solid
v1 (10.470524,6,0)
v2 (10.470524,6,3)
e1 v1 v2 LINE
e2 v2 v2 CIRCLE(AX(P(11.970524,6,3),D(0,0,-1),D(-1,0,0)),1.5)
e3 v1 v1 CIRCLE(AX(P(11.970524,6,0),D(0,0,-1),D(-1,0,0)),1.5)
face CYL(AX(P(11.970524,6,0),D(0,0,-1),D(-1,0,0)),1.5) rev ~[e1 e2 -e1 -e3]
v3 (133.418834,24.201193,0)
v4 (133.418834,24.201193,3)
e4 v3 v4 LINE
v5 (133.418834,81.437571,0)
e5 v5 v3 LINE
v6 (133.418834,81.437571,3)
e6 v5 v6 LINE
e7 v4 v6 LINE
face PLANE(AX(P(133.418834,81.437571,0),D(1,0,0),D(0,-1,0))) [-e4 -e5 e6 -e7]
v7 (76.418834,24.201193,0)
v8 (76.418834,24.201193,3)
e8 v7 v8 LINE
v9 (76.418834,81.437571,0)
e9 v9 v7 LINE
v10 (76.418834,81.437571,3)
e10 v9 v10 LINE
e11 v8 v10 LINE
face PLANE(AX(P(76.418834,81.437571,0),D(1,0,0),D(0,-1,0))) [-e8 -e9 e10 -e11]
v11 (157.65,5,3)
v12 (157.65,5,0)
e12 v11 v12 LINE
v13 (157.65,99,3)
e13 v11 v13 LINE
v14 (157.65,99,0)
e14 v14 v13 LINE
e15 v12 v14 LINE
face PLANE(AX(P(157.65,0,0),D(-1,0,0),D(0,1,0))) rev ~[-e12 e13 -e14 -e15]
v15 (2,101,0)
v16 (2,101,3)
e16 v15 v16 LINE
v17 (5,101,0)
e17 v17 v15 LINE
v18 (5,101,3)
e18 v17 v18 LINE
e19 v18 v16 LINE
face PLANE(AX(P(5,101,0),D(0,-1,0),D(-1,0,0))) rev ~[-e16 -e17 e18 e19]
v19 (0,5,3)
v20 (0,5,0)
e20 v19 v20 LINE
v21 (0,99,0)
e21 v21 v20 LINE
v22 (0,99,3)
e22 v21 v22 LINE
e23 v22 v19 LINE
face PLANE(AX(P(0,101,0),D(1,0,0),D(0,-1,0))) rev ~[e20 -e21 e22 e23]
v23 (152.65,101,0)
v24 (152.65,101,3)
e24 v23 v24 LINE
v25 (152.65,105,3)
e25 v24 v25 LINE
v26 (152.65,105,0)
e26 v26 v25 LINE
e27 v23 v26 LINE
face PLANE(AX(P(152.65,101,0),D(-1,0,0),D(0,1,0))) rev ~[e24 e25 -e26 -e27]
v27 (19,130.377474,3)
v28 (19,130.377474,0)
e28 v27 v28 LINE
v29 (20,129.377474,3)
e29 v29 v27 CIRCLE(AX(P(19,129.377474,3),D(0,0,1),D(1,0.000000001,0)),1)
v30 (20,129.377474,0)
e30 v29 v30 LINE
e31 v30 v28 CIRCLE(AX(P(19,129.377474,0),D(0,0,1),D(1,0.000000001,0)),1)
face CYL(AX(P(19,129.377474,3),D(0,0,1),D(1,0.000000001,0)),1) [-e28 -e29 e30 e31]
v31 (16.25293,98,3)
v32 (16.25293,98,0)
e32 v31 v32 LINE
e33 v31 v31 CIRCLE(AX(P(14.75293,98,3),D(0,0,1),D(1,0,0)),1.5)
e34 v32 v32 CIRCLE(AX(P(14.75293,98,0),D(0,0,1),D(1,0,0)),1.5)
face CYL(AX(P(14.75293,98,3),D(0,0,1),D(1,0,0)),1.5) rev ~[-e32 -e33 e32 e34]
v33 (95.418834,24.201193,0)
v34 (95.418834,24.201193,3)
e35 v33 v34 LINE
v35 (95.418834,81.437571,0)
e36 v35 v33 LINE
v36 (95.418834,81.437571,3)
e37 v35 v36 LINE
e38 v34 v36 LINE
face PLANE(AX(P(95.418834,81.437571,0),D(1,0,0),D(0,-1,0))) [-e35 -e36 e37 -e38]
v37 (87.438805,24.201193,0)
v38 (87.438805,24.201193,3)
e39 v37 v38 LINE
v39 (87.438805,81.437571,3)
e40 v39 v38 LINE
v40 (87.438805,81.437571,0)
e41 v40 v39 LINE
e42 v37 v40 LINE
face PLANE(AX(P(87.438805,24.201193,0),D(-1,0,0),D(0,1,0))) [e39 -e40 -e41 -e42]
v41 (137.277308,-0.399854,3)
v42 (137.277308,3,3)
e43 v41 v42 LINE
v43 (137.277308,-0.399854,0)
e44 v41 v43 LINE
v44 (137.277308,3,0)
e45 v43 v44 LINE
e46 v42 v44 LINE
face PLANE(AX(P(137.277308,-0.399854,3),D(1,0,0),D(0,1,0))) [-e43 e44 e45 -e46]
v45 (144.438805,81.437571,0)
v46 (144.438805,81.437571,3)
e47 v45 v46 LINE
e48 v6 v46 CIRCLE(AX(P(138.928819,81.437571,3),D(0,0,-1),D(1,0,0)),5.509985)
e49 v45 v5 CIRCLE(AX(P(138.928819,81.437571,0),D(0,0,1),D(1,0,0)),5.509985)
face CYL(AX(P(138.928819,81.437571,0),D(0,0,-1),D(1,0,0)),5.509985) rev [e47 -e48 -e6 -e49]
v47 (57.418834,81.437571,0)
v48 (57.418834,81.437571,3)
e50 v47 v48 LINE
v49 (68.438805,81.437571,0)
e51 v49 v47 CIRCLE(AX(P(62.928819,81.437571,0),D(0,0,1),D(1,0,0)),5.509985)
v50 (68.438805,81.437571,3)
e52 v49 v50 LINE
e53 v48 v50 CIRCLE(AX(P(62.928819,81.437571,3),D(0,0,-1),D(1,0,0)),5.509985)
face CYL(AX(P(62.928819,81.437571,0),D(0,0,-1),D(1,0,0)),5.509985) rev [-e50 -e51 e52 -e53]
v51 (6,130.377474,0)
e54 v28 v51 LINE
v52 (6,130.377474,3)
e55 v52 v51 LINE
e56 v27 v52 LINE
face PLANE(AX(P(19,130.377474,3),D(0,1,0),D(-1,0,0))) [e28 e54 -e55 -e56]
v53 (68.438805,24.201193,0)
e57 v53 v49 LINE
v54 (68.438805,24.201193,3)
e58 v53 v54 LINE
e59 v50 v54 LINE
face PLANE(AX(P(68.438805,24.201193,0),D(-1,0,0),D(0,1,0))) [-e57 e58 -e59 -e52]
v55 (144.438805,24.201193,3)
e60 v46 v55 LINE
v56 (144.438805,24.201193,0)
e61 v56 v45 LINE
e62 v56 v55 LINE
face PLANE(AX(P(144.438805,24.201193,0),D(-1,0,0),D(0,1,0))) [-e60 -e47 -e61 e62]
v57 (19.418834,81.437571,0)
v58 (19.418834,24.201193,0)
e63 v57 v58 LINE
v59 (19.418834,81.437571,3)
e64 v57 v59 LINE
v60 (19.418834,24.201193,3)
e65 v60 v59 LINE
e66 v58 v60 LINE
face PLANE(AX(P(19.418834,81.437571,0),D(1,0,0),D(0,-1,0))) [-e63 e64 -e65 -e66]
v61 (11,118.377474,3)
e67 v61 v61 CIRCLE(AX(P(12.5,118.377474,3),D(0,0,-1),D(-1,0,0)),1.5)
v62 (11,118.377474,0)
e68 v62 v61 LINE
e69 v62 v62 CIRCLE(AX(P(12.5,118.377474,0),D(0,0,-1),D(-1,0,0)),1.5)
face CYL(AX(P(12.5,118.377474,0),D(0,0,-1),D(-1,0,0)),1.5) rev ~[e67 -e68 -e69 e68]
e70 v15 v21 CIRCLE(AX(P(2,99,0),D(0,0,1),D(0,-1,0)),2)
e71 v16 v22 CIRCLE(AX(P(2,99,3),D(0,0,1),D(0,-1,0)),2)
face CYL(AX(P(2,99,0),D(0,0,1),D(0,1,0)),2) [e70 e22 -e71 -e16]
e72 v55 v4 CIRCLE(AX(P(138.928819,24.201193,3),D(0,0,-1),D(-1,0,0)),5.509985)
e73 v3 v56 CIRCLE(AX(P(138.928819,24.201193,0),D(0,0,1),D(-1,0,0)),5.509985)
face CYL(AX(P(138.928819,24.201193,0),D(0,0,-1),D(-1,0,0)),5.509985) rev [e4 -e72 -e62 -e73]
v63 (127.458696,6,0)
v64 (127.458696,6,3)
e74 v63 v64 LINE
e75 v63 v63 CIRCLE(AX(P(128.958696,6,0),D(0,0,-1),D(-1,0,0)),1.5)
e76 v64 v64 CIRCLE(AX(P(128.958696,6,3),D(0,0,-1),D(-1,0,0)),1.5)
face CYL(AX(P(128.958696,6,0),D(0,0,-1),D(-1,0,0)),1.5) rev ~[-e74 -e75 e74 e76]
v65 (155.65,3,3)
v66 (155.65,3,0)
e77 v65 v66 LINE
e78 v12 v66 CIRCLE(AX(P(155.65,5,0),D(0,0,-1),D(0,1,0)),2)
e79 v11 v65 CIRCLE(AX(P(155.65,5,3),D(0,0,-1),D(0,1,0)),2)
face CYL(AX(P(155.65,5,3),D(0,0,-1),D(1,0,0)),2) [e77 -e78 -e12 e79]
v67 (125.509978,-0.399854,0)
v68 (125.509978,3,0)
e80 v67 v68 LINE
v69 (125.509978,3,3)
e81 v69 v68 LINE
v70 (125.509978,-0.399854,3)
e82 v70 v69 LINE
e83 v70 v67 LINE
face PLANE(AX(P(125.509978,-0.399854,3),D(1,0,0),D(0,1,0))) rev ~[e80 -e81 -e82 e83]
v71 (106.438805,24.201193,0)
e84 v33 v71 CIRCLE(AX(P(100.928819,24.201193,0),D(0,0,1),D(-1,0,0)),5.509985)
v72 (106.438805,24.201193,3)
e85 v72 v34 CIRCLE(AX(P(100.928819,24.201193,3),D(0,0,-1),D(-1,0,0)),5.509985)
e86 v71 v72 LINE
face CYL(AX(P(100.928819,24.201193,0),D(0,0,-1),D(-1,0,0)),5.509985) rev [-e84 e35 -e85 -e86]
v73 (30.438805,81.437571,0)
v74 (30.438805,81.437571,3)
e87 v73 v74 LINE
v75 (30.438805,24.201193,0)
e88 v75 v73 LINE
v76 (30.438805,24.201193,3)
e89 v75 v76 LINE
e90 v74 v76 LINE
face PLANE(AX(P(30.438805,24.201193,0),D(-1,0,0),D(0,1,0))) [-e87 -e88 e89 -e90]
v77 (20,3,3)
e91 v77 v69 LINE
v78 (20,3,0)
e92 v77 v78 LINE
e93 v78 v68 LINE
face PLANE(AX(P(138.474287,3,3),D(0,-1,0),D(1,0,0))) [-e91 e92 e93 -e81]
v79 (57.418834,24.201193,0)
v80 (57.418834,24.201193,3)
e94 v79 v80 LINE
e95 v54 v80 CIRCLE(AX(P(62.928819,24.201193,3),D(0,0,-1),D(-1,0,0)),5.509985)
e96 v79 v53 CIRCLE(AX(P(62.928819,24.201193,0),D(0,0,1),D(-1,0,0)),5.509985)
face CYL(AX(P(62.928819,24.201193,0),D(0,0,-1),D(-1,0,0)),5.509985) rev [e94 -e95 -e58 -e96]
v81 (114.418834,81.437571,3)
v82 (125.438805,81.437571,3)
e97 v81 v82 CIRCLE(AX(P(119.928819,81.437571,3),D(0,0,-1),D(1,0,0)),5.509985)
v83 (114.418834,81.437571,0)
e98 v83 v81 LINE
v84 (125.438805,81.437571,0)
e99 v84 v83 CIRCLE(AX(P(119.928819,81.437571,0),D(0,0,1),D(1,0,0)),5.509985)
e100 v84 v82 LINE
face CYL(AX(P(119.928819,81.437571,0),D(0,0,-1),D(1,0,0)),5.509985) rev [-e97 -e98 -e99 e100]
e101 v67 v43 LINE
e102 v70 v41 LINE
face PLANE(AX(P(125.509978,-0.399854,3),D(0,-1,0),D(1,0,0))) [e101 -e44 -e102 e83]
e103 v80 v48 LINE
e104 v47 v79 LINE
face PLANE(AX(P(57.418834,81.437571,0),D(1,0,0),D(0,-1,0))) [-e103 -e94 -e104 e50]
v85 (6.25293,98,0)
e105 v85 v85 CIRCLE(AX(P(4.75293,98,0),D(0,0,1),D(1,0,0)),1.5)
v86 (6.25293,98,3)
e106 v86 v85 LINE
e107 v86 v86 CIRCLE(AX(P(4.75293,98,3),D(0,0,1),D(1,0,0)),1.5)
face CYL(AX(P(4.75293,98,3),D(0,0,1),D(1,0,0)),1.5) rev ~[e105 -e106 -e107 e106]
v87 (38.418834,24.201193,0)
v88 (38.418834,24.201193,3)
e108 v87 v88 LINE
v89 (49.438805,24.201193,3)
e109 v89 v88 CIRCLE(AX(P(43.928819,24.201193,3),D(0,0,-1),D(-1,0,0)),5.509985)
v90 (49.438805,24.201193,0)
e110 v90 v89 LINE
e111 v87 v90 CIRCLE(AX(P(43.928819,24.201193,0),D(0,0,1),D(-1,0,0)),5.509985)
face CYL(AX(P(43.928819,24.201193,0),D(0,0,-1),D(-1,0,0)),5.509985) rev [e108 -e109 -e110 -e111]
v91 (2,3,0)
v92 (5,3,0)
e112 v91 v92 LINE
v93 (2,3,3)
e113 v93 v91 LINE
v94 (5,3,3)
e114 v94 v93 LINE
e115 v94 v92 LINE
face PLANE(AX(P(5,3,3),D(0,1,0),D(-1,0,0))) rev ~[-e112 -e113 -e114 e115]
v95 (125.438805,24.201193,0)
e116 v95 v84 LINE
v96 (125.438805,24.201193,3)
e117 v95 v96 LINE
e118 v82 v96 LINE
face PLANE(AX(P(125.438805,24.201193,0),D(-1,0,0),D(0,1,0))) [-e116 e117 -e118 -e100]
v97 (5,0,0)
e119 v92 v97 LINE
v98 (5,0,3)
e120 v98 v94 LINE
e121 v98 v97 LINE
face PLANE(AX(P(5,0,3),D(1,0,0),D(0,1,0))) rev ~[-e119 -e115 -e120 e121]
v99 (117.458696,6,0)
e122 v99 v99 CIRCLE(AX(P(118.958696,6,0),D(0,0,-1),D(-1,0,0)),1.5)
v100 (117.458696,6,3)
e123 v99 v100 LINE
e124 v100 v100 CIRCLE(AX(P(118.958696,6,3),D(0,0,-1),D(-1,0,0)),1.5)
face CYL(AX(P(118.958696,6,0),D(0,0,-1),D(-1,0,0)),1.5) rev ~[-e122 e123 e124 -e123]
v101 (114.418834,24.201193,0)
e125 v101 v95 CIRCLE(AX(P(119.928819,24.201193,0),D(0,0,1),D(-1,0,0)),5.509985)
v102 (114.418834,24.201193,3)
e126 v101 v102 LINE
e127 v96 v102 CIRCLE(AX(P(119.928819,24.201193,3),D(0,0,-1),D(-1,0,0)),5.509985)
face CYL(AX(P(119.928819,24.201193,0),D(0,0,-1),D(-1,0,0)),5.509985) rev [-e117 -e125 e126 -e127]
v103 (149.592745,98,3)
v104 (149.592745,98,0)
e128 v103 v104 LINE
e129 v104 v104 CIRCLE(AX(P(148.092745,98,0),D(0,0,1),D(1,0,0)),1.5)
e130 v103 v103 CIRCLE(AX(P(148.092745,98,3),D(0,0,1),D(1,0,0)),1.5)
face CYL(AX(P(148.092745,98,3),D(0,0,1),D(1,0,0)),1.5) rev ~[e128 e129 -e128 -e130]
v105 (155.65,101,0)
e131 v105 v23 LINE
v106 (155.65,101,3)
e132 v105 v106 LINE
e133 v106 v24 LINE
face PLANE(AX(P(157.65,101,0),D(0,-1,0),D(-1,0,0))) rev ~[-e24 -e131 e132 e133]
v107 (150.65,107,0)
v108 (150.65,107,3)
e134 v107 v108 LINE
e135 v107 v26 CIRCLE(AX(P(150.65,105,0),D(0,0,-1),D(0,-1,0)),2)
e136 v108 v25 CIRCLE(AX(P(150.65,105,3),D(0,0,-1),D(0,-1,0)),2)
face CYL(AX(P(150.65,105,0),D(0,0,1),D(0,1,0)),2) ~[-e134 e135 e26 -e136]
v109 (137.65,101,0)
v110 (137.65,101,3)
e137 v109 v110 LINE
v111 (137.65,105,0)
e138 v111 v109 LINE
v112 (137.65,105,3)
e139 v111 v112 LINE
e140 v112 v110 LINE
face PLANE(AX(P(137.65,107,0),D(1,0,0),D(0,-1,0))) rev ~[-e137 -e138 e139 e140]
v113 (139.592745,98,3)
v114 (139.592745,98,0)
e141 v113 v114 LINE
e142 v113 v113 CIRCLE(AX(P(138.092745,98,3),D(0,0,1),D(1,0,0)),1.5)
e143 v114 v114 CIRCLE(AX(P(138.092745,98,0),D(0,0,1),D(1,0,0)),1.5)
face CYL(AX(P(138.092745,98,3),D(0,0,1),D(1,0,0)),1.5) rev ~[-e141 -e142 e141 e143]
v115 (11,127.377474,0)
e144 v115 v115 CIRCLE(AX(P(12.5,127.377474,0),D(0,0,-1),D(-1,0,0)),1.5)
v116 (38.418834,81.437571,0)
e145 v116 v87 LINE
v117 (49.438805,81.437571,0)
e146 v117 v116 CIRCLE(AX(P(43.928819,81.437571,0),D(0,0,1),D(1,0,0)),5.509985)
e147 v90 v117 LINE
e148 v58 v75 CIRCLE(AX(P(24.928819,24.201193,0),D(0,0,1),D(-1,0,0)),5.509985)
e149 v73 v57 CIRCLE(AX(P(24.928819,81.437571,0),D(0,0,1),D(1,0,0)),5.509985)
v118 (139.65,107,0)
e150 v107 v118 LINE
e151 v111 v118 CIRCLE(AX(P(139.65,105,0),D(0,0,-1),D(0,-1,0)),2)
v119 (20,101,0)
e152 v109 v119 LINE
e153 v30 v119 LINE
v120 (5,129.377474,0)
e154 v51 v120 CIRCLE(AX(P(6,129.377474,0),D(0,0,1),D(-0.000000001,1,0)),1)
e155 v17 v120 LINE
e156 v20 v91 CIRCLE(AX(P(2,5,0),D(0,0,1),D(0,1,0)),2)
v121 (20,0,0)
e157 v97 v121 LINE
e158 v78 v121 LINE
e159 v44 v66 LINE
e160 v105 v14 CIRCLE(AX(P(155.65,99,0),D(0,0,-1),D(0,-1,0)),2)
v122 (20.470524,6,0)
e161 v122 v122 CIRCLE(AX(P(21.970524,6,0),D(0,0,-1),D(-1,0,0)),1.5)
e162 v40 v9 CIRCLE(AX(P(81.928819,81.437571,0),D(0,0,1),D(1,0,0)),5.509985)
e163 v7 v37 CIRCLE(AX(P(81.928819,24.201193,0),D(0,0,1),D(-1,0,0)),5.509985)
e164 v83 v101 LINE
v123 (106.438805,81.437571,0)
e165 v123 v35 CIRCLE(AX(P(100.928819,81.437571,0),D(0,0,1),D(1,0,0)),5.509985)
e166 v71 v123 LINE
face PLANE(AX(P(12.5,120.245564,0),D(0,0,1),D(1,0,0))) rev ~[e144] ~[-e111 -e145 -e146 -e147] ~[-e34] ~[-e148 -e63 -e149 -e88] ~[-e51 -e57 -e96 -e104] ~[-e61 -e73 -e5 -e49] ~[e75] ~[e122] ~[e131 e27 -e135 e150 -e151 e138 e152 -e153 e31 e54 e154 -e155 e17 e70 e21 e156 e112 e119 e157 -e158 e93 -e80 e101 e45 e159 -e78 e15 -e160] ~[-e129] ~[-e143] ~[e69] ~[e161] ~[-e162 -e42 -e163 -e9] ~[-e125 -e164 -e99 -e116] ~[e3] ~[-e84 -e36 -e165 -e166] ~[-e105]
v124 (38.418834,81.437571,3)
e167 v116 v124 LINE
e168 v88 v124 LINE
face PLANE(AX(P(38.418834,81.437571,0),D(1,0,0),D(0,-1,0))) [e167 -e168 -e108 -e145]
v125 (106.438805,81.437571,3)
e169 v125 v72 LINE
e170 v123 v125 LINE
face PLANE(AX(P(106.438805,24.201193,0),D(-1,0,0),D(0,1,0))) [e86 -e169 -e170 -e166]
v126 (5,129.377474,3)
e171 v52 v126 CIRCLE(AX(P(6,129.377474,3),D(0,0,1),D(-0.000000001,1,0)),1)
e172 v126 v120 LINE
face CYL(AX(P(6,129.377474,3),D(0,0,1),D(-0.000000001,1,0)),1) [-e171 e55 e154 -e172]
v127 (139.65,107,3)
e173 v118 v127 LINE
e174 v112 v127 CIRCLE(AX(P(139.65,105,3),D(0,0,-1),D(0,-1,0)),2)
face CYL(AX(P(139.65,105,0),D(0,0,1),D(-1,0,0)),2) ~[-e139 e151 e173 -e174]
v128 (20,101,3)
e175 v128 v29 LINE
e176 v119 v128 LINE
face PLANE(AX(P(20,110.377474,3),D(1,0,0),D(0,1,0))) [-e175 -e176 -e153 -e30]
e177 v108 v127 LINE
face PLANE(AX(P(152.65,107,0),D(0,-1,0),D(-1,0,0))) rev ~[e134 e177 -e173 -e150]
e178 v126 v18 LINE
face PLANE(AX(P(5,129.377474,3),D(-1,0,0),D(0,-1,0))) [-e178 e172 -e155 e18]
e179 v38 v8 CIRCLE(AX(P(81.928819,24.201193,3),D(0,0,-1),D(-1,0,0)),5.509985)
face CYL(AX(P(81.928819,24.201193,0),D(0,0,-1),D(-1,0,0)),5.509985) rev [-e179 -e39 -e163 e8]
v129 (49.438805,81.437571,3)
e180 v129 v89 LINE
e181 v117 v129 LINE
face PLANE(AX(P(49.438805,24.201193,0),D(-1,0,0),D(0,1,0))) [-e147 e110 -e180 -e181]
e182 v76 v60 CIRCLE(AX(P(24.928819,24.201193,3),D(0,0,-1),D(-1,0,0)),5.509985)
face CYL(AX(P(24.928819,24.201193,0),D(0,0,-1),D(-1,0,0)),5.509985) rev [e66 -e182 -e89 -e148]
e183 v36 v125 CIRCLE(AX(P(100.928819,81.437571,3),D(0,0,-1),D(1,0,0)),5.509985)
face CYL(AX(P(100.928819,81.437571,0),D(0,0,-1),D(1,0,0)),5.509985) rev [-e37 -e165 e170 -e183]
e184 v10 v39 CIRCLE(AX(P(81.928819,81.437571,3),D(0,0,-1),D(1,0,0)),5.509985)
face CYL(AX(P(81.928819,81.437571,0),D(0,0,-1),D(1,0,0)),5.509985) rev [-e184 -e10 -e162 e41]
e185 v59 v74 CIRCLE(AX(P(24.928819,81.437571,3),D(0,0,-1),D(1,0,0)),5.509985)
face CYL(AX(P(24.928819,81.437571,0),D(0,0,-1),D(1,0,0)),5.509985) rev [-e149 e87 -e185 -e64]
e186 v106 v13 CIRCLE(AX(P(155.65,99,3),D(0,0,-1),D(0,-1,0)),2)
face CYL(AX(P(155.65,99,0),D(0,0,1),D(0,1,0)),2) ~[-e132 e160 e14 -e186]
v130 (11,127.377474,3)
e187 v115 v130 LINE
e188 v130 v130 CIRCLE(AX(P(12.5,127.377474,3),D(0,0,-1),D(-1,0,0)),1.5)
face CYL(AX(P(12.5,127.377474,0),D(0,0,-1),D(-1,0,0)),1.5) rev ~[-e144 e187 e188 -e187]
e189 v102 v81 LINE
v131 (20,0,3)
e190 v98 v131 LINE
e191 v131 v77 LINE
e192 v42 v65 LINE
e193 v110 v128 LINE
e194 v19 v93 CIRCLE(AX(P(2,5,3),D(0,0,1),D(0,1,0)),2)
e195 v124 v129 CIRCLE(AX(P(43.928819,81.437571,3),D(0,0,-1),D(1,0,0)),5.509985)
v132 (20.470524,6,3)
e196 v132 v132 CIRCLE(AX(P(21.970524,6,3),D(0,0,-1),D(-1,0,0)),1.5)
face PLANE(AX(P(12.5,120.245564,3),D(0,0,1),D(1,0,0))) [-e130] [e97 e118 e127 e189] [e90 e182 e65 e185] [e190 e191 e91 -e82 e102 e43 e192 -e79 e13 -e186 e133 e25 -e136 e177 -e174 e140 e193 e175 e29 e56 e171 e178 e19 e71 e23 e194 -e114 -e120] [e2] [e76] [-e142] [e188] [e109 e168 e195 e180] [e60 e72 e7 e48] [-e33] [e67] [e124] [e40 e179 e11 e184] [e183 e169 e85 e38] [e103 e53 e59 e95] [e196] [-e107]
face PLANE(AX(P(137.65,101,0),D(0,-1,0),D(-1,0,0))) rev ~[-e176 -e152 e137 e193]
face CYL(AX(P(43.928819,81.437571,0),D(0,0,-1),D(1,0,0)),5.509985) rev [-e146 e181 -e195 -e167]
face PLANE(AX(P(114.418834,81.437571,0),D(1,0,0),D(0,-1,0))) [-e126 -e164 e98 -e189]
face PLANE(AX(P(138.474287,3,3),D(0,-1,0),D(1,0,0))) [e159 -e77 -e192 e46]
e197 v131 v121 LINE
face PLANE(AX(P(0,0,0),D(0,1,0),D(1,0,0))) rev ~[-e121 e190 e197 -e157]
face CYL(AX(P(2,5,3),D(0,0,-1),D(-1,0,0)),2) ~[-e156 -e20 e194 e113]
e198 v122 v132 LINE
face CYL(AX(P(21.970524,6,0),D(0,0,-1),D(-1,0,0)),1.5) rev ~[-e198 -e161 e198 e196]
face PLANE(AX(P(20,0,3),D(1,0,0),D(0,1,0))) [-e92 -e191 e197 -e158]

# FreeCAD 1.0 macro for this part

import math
import FreeCAD as App
import Part
import Sketcher

V = App.Vector
Q = App.Units.Quantity


def edges_at(feature, points):
    """Names of the edges that pass closest to the given points."""
    edges = feature.Shape.Edges
    near = lambda p: min(range(len(edges)), key=lambda i: edges[i].distToShape(Part.Vertex(*p))[0])
    return sorted({f"Edge{near(p) + 1}" for p in points})


def add_polygon(sketch, points):
    """Adds a closed chain of lines whose ends are joined by coincident constraints."""
    first, n = sketch.GeometryCount, len(points)
    for a, b in zip(points, points[1:] + points[:1]):
        sketch.addGeometry(Part.LineSegment(App.Vector(*a, 0), App.Vector(*b, 0)), False)
    for i in range(n):
        sketch.addConstraint(Sketcher.Constraint("Coincident", first + i, 2, first + (i + 1) % n, 1))

doc = App.newDocument("Part")
body = doc.addObject("PartDesign::Body", "Body")

# Sketch on XY plane
sketch1 = body.newObject("Sketcher::SketchObject", "Sketch")
sketch1.AttachmentSupport = (doc.getObject("XY_Plane"), [""])
sketch1.MapMode = "FlatFace"
add_polygon(sketch1, [(0, 101), (0, 0), (157.7, 0), (157.7, 101), (152.7, 101), (152.7, 107), (137.7, 107), (137.7, 101), (20, 101), (20, 104), (5, 104), (5, 101)])  # lines 0-11
sketch1.addConstraint(Sketcher.Constraint("Vertical", 0))
sketch1.addConstraint(Sketcher.Constraint("Horizontal", 1))
sketch1.addConstraint(Sketcher.Constraint("Vertical", 2))
sketch1.addConstraint(Sketcher.Constraint("Horizontal", 3))
sketch1.addConstraint(Sketcher.Constraint("Vertical", 4))
sketch1.addConstraint(Sketcher.Constraint("Horizontal", 5))
sketch1.addConstraint(Sketcher.Constraint("Vertical", 6))
sketch1.addConstraint(Sketcher.Constraint("Horizontal", 7))
sketch1.addConstraint(Sketcher.Constraint("Vertical", 8))
sketch1.addConstraint(Sketcher.Constraint("Horizontal", 9))
sketch1.addConstraint(Sketcher.Constraint("Vertical", 10))
sketch1.addConstraint(Sketcher.Constraint("Horizontal", 11))
sketch1.addConstraint(Sketcher.Constraint("Coincident", 0, 2, -1, 1))
sketch1.addConstraint(Sketcher.Constraint("Horizontal", 3, 2, 6, 2))
sketch1.addConstraint(Sketcher.Constraint("Horizontal", 7, 2, 10, 2))
sketch1.addConstraint(Sketcher.Constraint("Equal", 5, 9))
sketch1.addConstraint(Sketcher.Constraint("Equal", 3, 11))
sketch1.addConstraint(Sketcher.Constraint("DistanceX", 3, 2, 3, 1, Q("5 mm")))
sketch1.addConstraint(Sketcher.Constraint("DistanceX", 5, 2, 5, 1, Q("15 mm")))
sketch1.addConstraint(Sketcher.Constraint("DistanceY", 0, 2, 0, 1, Q("101 mm")))
sketch1.addConstraint(Sketcher.Constraint("DistanceY", 4, 1, 4, 2, Q("6 mm")))
sketch1.addConstraint(Sketcher.Constraint("DistanceY", 8, 1, 8, 2, Q("3 mm")))
sketch1.addConstraint(Sketcher.Constraint("DistanceX", 1, 1, 1, 2, Q("157.65 mm")))
pad1 = body.newObject("PartDesign::Pad", "Pad")
pad1.Profile = sketch1
pad1.Length = 3

# Sketch on XZ plane
sketch2 = body.newObject("Sketcher::SketchObject", "Sketch001")
sketch2.AttachmentSupport = (doc.getObject("XZ_Plane"), [""])
sketch2.MapMode = "FlatFace"
sketch2.AttachmentOffset = App.Placement(V(0, 0, -104), App.Rotation())
add_polygon(sketch2, [(5, 0), (5, 3), (20, 3), (20, 0)])  # lines 0-3
sketch2.addConstraint(Sketcher.Constraint("Vertical", 0))
sketch2.addConstraint(Sketcher.Constraint("Horizontal", 1))
sketch2.addConstraint(Sketcher.Constraint("Vertical", 2))
sketch2.addConstraint(Sketcher.Constraint("Horizontal", 3))
sketch2.addConstraint(Sketcher.Constraint("PointOnObject", 2, 2, -1))
sketch2.addConstraint(Sketcher.Constraint("DistanceX", 1, 1, 1, 2, Q("15 mm")))
sketch2.addConstraint(Sketcher.Constraint("DistanceY", 0, 1, 0, 2, Q("3 mm")))
sketch2.addConstraint(Sketcher.Constraint("DistanceX", -1, 1, 0, 2, Q("5 mm")))
pad2 = body.newObject("PartDesign::Pad", "Pad001")
pad2.Profile = sketch2
pad2.Length = 0.5
pad2.Reversed = True
doc.recompute()

fillet = body.newObject("PartDesign::Fillet", "Fillet")
fillet.Base = (pad2, edges_at(pad2, [(0, 0, 1.5)]))
fillet.Radius = 0.5

# Sketch on XY plane
sketch3 = body.newObject("Sketcher::SketchObject", "Sketch002")
sketch3.AttachmentSupport = (doc.getObject("XY_Plane"), [""])
sketch3.MapMode = "FlatFace"
sketch3.AttachmentOffset = App.Placement(V(0, 0, 3), App.Rotation())
sketch3.addGeometry(Part.LineSegment(V(5, 3, 0), V(0, 3, 0)), False)  # 0
sketch3.addGeometry(Part.LineSegment(V(0, 3, 0), V(0, 0.5, 0)), False)  # 1
sketch3.addGeometry(Part.ArcOfCircle(Part.Circle(V(0.5, 0.5, 0), V(0, 0, 1), 0.5), math.radians(180), math.radians(270)), False)  # 2
sketch3.addGeometry(Part.LineSegment(V(0.5, 0, 0), V(5, 0, 0)), False)  # 3
sketch3.addGeometry(Part.LineSegment(V(5, 0, 0), V(5, 3, 0)), False)  # 4
add_polygon(sketch3, [(20, 3), (20, 0), (138.47, 0), (138.47, 3)])  # lines 5-8
sketch3.addConstraint(Sketcher.Constraint("Coincident", 0, 2, 1, 1))
sketch3.addConstraint(Sketcher.Constraint("Tangent", 1, 2, 2, 1))
sketch3.addConstraint(Sketcher.Constraint("Tangent", 2, 2, 3, 1))
sketch3.addConstraint(Sketcher.Constraint("Coincident", 3, 2, 4, 1))
sketch3.addConstraint(Sketcher.Constraint("Coincident", 4, 2, 0, 1))
sketch3.addConstraint(Sketcher.Constraint("Horizontal", 0))
sketch3.addConstraint(Sketcher.Constraint("Vertical", 1))
sketch3.addConstraint(Sketcher.Constraint("Horizontal", 3))
sketch3.addConstraint(Sketcher.Constraint("Vertical", 4))
sketch3.addConstraint(Sketcher.Constraint("Vertical", 5))
sketch3.addConstraint(Sketcher.Constraint("Horizontal", 6))
sketch3.addConstraint(Sketcher.Constraint("Vertical", 7))
sketch3.addConstraint(Sketcher.Constraint("Horizontal", 8))
sketch3.addConstraint(Sketcher.Constraint("PointOnObject", 0, 2, -2))
sketch3.addConstraint(Sketcher.Constraint("PointOnObject", 2, 2, -1))
sketch3.addConstraint(Sketcher.Constraint("PointOnObject", 5, 2, -1))
sketch3.addConstraint(Sketcher.Constraint("Horizontal", 4, 2, 7, 2))
sketch3.addConstraint(Sketcher.Constraint("Radius", 2, Q("0.5 mm")))
sketch3.addConstraint(Sketcher.Constraint("DistanceX", 0, 2, 0, 1, Q("5 mm")))
sketch3.addConstraint(Sketcher.Constraint("DistanceY", 4, 1, 4, 2, Q("3 mm")))
sketch3.addConstraint(Sketcher.Constraint("DistanceX", -1, 1, 5, 2, Q("20 mm")))
sketch3.addConstraint(Sketcher.Constraint("DistanceX", 6, 1, 6, 2, Q("118.474287 mm")))
pocket1 = body.newObject("PartDesign::Pocket", "Pocket")
pocket1.Profile = sketch3
pocket1.Length = 10

# Sketch on XY plane
sketch4 = body.newObject("Sketcher::SketchObject", "Sketch003")
sketch4.AttachmentSupport = (doc.getObject("XY_Plane"), [""])
sketch4.MapMode = "FlatFace"
sketch4.addGeometry(Part.Circle(V(22, 6, 0), V(0, 0, 1), 1.5), False)
sketch4.addGeometry(Part.Circle(V(12, 6, 0), V(0, 0, 1), 1.5), False)
sketch4.addConstraint(Sketcher.Constraint("Equal", 0, 1))
sketch4.addConstraint(Sketcher.Constraint("Horizontal", 0, 3, 1, 3))
sketch4.addConstraint(Sketcher.Constraint("Diameter", 0, Q("3 mm")))
sketch4.addConstraint(Sketcher.Constraint("DistanceY", -1, 1, 0, 3, Q("6 mm")))
sketch4.addConstraint(Sketcher.Constraint("DistanceX", 1, 3, 0, 3, Q("10 mm")))
sketch4.addConstraint(Sketcher.Constraint("DistanceX", -1, 1, 0, 3, Q("21.970524 mm")))
pocket2 = body.newObject("PartDesign::Pocket", "Pocket001")
pocket2.Profile = sketch4
pocket2.Type = "ThroughAll"
pocket2.Reversed = True

# Sketch on XY plane
sketch5 = body.newObject("Sketcher::SketchObject", "Sketch004")
sketch5.AttachmentSupport = (doc.getObject("XY_Plane"), [""])
sketch5.MapMode = "FlatFace"
sketch5.addGeometry(Part.Circle(V(129, 6, 0), V(0, 0, 1), 1.5), False)
sketch5.addGeometry(Part.Circle(V(119, 6, 0), V(0, 0, 1), 1.5), False)
sketch5.addConstraint(Sketcher.Constraint("Equal", 0, 1))
sketch5.addConstraint(Sketcher.Constraint("Horizontal", 0, 3, 1, 3))
sketch5.addConstraint(Sketcher.Constraint("Diameter", 0, Q("3 mm")))
sketch5.addConstraint(Sketcher.Constraint("DistanceY", -1, 1, 0, 3, Q("6 mm")))
sketch5.addConstraint(Sketcher.Constraint("DistanceX", 1, 3, 0, 3, Q("10 mm")))
sketch5.addConstraint(Sketcher.Constraint("DistanceX", -1, 1, 0, 3, Q("128.958696 mm")))
pocket3 = body.newObject("PartDesign::Pocket", "Pocket002")
pocket3.Profile = sketch5
pocket3.Type = "ThroughAll"
pocket3.Reversed = True

# Sketch on XY plane
sketch6 = body.newObject("Sketcher::SketchObject", "Sketch005")
sketch6.AttachmentSupport = (doc.getObject("XY_Plane"), [""])
sketch6.MapMode = "FlatFace"
add_polygon(sketch6, [(20, 111), (20, 102), (5, 102), (5, 111)])  # lines 0-3
sketch6.addConstraint(Sketcher.Constraint("Vertical", 0))
sketch6.addConstraint(Sketcher.Constraint("Horizontal", 1))
sketch6.addConstraint(Sketcher.Constraint("Vertical", 2))
sketch6.addConstraint(Sketcher.Constraint("Horizontal", 3))
sketch6.addConstraint(Sketcher.Constraint("DistanceX", 1, 2, 1, 1, Q("15 mm")))
sketch6.addConstraint(Sketcher.Constraint("DistanceY", 0, 2, 0, 1, Q("9 mm")))
sketch6.addConstraint(Sketcher.Constraint("DistanceX", -1, 1, 0, 2, Q("20 mm")))
sketch6.addConstraint(Sketcher.Constraint("DistanceY", -1, 1, 0, 2, Q("102.377474 mm")))
pad3 = body.newObject("PartDesign::Pad", "Pad002")
pad3.Profile = sketch6
pad3.Length = 3
doc.recompute()

fillet2 = body.newObject("PartDesign::Fillet", "Fillet001")
fillet2.Base = (pad3, edges_at(pad3, [(5, 111.377, 1.5), (20, 111.377, 1.5)]))
fillet2.Radius = 1

# Sketch on XY plane
sketch7 = body.newObject("Sketcher::SketchObject", "Sketch006")
sketch7.AttachmentSupport = (doc.getObject("XY_Plane"), [""])
sketch7.MapMode = "FlatFace"
sketch7.AttachmentOffset = App.Placement(V(0, 0, 3), App.Rotation())
sketch7.addGeometry(Part.Circle(V(4.8, 98, 0), V(0, 0, 1), 1.5), False)
sketch7.addGeometry(Part.Circle(V(14.8, 98, 0), V(0, 0, 1), 1.5), False)
sketch7.addConstraint(Sketcher.Constraint("Equal", 0, 1))
sketch7.addConstraint(Sketcher.Constraint("Horizontal", 0, 3, 1, 3))
sketch7.addConstraint(Sketcher.Constraint("Diameter", 0, Q("3 mm")))
sketch7.addConstraint(Sketcher.Constraint("DistanceY", -1, 1, 0, 3, Q("98 mm")))
sketch7.addConstraint(Sketcher.Constraint("DistanceX", 0, 3, 1, 3, Q("10 mm")))
sketch7.addConstraint(Sketcher.Constraint("DistanceX", -1, 1, 0, 3, Q("4.75293 mm")))
pocket4 = body.newObject("PartDesign::Pocket", "Pocket003")
pocket4.Profile = sketch7
pocket4.Type = "ThroughAll"

# Sketch on XY plane
sketch8 = body.newObject("Sketcher::SketchObject", "Sketch007")
sketch8.AttachmentSupport = (doc.getObject("XY_Plane"), [""])
sketch8.MapMode = "FlatFace"
sketch8.AttachmentOffset = App.Placement(V(0, 0, 3), App.Rotation())
sketch8.addGeometry(Part.LineSegment(V(19, 130.4, 0), V(6, 130.4, 0)), False)
sketch8.addGeometry(Part.ArcOfCircle(Part.Circle(V(6, 129.4, 0), V(0, 0, 1), 1), math.radians(90), math.radians(180)), False)
sketch8.addGeometry(Part.LineSegment(V(5, 129.4, 0), V(5, 110.4, 0)), False)
sketch8.addGeometry(Part.LineSegment(V(5, 110.4, 0), V(20, 110.4, 0)), False)
sketch8.addGeometry(Part.LineSegment(V(20, 110.4, 0), V(20, 129.4, 0)), False)
sketch8.addGeometry(Part.ArcOfCircle(Part.Circle(V(19, 129.4, 0), V(0, 0, 1), 1), math.radians(0), math.radians(90)), False)
sketch8.addConstraint(Sketcher.Constraint("Tangent", 0, 2, 1, 1))
sketch8.addConstraint(Sketcher.Constraint("Tangent", 1, 2, 2, 1))
sketch8.addConstraint(Sketcher.Constraint("Coincident", 2, 2, 3, 1))
sketch8.addConstraint(Sketcher.Constraint("Coincident", 3, 2, 4, 1))
sketch8.addConstraint(Sketcher.Constraint("Tangent", 4, 2, 5, 1))
sketch8.addConstraint(Sketcher.Constraint("Tangent", 5, 2, 0, 1))
sketch8.addConstraint(Sketcher.Constraint("Horizontal", 0))
sketch8.addConstraint(Sketcher.Constraint("Vertical", 2))
sketch8.addConstraint(Sketcher.Constraint("Horizontal", 3))
sketch8.addConstraint(Sketcher.Constraint("Vertical", 4))
sketch8.addConstraint(Sketcher.Constraint("Equal", 1, 5))
sketch8.addConstraint(Sketcher.Constraint("Radius", 1, Q("1 mm")))
sketch8.addConstraint(Sketcher.Constraint("DistanceX", 0, 2, 0, 1, Q("13 mm")))
sketch8.addConstraint(Sketcher.Constraint("DistanceY", 2, 2, 2, 1, Q("19 mm")))
sketch8.addConstraint(Sketcher.Constraint("DistanceX", -1, 1, 1, 3, Q("6 mm")))
sketch8.addConstraint(Sketcher.Constraint("DistanceY", -1, 1, 1, 3, Q("129.377474 mm")))
pad4 = body.newObject("PartDesign::Pad", "Pad003")
pad4.Profile = sketch8
pad4.Length = 3
pad4.Reversed = True

# Sketch on XY plane
sketch9 = body.newObject("Sketcher::SketchObject", "Sketch008")
sketch9.AttachmentSupport = (doc.getObject("XY_Plane"), [""])
sketch9.MapMode = "FlatFace"
sketch9.addGeometry(Part.LineSegment(V(133, 24, 0), V(133, 81, 0)), False)
sketch9.addGeometry(Part.ArcOfCircle(Part.Circle(V(139, 81, 0), V(0, 0, 1), 6), math.radians(0), math.radians(180)), False)
sketch9.addGeometry(Part.LineSegment(V(144, 81, 0), V(144, 24, 0)), False)
sketch9.addGeometry(Part.ArcOfCircle(Part.Circle(V(139, 24, 0), V(0, 0, 1), 6), math.radians(180), math.radians(360)), False)
sketch9.addGeometry(Part.LineSegment(V(114, 24, 0), V(114, 81, 0)), False)
sketch9.addGeometry(Part.ArcOfCircle(Part.Circle(V(120, 81, 0), V(0, 0, 1), 6), math.radians(0), math.radians(180)), False)
sketch9.addGeometry(Part.LineSegment(V(125, 81, 0), V(125, 24, 0)), False)
sketch9.addGeometry(Part.ArcOfCircle(Part.Circle(V(120, 24, 0), V(0, 0, 1), 6), math.radians(180), math.radians(360)), False)
sketch9.addGeometry(Part.LineSegment(V(95, 24, 0), V(95, 81, 0)), False)
sketch9.addGeometry(Part.ArcOfCircle(Part.Circle(V(101, 81, 0), V(0, 0, 1), 6), math.radians(0), math.radians(180)), False)
sketch9.addGeometry(Part.LineSegment(V(106, 81, 0), V(106, 24, 0)), False)
sketch9.addGeometry(Part.ArcOfCircle(Part.Circle(V(101, 24, 0), V(0, 0, 1), 6), math.radians(180), math.radians(360)), False)
sketch9.addGeometry(Part.LineSegment(V(76, 24, 0), V(76, 81, 0)), False)
sketch9.addGeometry(Part.ArcOfCircle(Part.Circle(V(82, 81, 0), V(0, 0, 1), 6), math.radians(0), math.radians(180)), False)
sketch9.addGeometry(Part.LineSegment(V(87, 81, 0), V(87, 24, 0)), False)
sketch9.addGeometry(Part.ArcOfCircle(Part.Circle(V(82, 24, 0), V(0, 0, 1), 6), math.radians(180), math.radians(360)), False)
sketch9.addGeometry(Part.LineSegment(V(57, 24, 0), V(57, 81, 0)), False)
sketch9.addGeometry(Part.ArcOfCircle(Part.Circle(V(63, 81, 0), V(0, 0, 1), 6), math.radians(0), math.radians(180)), False)
sketch9.addGeometry(Part.LineSegment(V(68, 81, 0), V(68, 24, 0)), False)
sketch9.addGeometry(Part.ArcOfCircle(Part.Circle(V(63, 24, 0), V(0, 0, 1), 6), math.radians(180), math.radians(360)), False)
sketch9.addGeometry(Part.LineSegment(V(38, 24, 0), V(38, 81, 0)), False)
sketch9.addGeometry(Part.ArcOfCircle(Part.Circle(V(44, 81, 0), V(0, 0, 1), 6), math.radians(0), math.radians(180)), False)
sketch9.addGeometry(Part.LineSegment(V(49, 81, 0), V(49, 24, 0)), False)
sketch9.addGeometry(Part.ArcOfCircle(Part.Circle(V(44, 24, 0), V(0, 0, 1), 6), math.radians(180), math.radians(360)), False)
sketch9.addGeometry(Part.LineSegment(V(19, 24, 0), V(19, 81, 0)), False)
sketch9.addGeometry(Part.ArcOfCircle(Part.Circle(V(25, 81, 0), V(0, 0, 1), 6), math.radians(0), math.radians(180)), False)
sketch9.addGeometry(Part.LineSegment(V(30, 81, 0), V(30, 24, 0)), False)
sketch9.addGeometry(Part.ArcOfCircle(Part.Circle(V(25, 24, 0), V(0, 0, 1), 6), math.radians(180), math.radians(360)), False)
sketch9.addConstraint(Sketcher.Constraint("Tangent", 0, 2, 1, 2))
sketch9.addConstraint(Sketcher.Constraint("Tangent", 1, 1, 2, 1))
sketch9.addConstraint(Sketcher.Constraint("Tangent", 2, 2, 3, 2))
sketch9.addConstraint(Sketcher.Constraint("Tangent", 3, 1, 0, 1))
sketch9.addConstraint(Sketcher.Constraint("Tangent", 4, 2, 5, 2))
sketch9.addConstraint(Sketcher.Constraint("Tangent", 5, 1, 6, 1))
sketch9.addConstraint(Sketcher.Constraint("Tangent", 6, 2, 7, 2))
sketch9.addConstraint(Sketcher.Constraint("Tangent", 7, 1, 4, 1))
sketch9.addConstraint(Sketcher.Constraint("Tangent", 8, 2, 9, 2))
sketch9.addConstraint(Sketcher.Constraint("Tangent", 9, 1, 10, 1))
sketch9.addConstraint(Sketcher.Constraint("Tangent", 10, 2, 11, 2))
sketch9.addConstraint(Sketcher.Constraint("Tangent", 11, 1, 8, 1))
sketch9.addConstraint(Sketcher.Constraint("Tangent", 12, 2, 13, 2))
sketch9.addConstraint(Sketcher.Constraint("Tangent", 13, 1, 14, 1))
sketch9.addConstraint(Sketcher.Constraint("Tangent", 14, 2, 15, 2))
sketch9.addConstraint(Sketcher.Constraint("Tangent", 15, 1, 12, 1))
sketch9.addConstraint(Sketcher.Constraint("Tangent", 16, 2, 17, 2))
sketch9.addConstraint(Sketcher.Constraint("Tangent", 17, 1, 18, 1))
sketch9.addConstraint(Sketcher.Constraint("Tangent", 18, 2, 19, 2))
sketch9.addConstraint(Sketcher.Constraint("Tangent", 19, 1, 16, 1))
sketch9.addConstraint(Sketcher.Constraint("Tangent", 20, 2, 21, 2))
sketch9.addConstraint(Sketcher.Constraint("Tangent", 21, 1, 22, 1))
sketch9.addConstraint(Sketcher.Constraint("Tangent", 22, 2, 23, 2))
sketch9.addConstraint(Sketcher.Constraint("Tangent", 23, 1, 20, 1))
sketch9.addConstraint(Sketcher.Constraint("Tangent", 24, 2, 25, 2))
sketch9.addConstraint(Sketcher.Constraint("Tangent", 25, 1, 26, 1))
sketch9.addConstraint(Sketcher.Constraint("Tangent", 26, 2, 27, 2))
sketch9.addConstraint(Sketcher.Constraint("Tangent", 27, 1, 24, 1))
sketch9.addConstraint(Sketcher.Constraint("Vertical", 0))
sketch9.addConstraint(Sketcher.Constraint("Vertical", 2))
sketch9.addConstraint(Sketcher.Constraint("Vertical", 4))
sketch9.addConstraint(Sketcher.Constraint("Vertical", 6))
sketch9.addConstraint(Sketcher.Constraint("Vertical", 8))
sketch9.addConstraint(Sketcher.Constraint("Vertical", 10))
sketch9.addConstraint(Sketcher.Constraint("Vertical", 12))
sketch9.addConstraint(Sketcher.Constraint("Vertical", 14))
sketch9.addConstraint(Sketcher.Constraint("Vertical", 16))
sketch9.addConstraint(Sketcher.Constraint("Vertical", 18))
sketch9.addConstraint(Sketcher.Constraint("Vertical", 20))
sketch9.addConstraint(Sketcher.Constraint("Vertical", 22))
sketch9.addConstraint(Sketcher.Constraint("Vertical", 24))
sketch9.addConstraint(Sketcher.Constraint("Vertical", 26))
sketch9.addConstraint(Sketcher.Constraint("Equal", 3, 5))
sketch9.addConstraint(Sketcher.Constraint("Equal", 7, 9))
sketch9.addConstraint(Sketcher.Constraint("Equal", 11, 13))
sketch9.addConstraint(Sketcher.Constraint("Equal", 15, 17))
sketch9.addConstraint(Sketcher.Constraint("Equal", 19, 21))
sketch9.addConstraint(Sketcher.Constraint("Equal", 23, 25))
sketch9.addConstraint(Sketcher.Constraint("Horizontal", 1, 3, 5, 3))
sketch9.addConstraint(Sketcher.Constraint("Horizontal", 3, 3, 7, 3))
sketch9.addConstraint(Sketcher.Constraint("Horizontal", 5, 3, 9, 3))
sketch9.addConstraint(Sketcher.Constraint("Horizontal", 7, 3, 11, 3))
sketch9.addConstraint(Sketcher.Constraint("Horizontal", 9, 3, 13, 3))
sketch9.addConstraint(Sketcher.Constraint("Horizontal", 11, 3, 15, 3))
sketch9.addConstraint(Sketcher.Constraint("Horizontal", 13, 3, 17, 3))
sketch9.addConstraint(Sketcher.Constraint("Horizontal", 15, 3, 19, 3))
sketch9.addConstraint(Sketcher.Constraint("Horizontal", 17, 3, 21, 3))
sketch9.addConstraint(Sketcher.Constraint("Horizontal", 19, 3, 23, 3))
sketch9.addConstraint(Sketcher.Constraint("Horizontal", 21, 3, 25, 3))
sketch9.addConstraint(Sketcher.Constraint("Horizontal", 23, 3, 27, 3))
sketch9.addConstraint(Sketcher.Constraint("DistanceX", 5, 3, 1, 3, Q("19 mm")))
sketch9.addConstraint(Sketcher.Constraint("DistanceX", 9, 3, 5, 3, Q("19 mm")))
sketch9.addConstraint(Sketcher.Constraint("DistanceX", 13, 3, 9, 3, Q("19 mm")))
sketch9.addConstraint(Sketcher.Constraint("DistanceX", 17, 3, 13, 3, Q("19 mm")))
sketch9.addConstraint(Sketcher.Constraint("DistanceX", 21, 3, 17, 3, Q("19 mm")))
sketch9.addConstraint(Sketcher.Constraint("DistanceX", 25, 3, 21, 3, Q("19 mm")))
sketch9.addConstraint(Sketcher.Constraint("Radius", 1, Q("5.509985 mm")))
sketch9.addConstraint(Sketcher.Constraint("DistanceY", 0, 1, 0, 2, Q("57.236378 mm")))
sketch9.addConstraint(Sketcher.Constraint("DistanceX", -1, 1, 1, 3, Q("138.928819 mm")))
sketch9.addConstraint(Sketcher.Constraint("DistanceY", -1, 1, 1, 3, Q("81.437571 mm")))
pocket5 = body.newObject("PartDesign::Pocket", "Pocket004")
pocket5.Profile = sketch9
pocket5.Length = 10
pocket5.Reversed = True
doc.recompute()

fillet3 = body.newObject("PartDesign::Fillet", "Fillet002")
fillet3.Base = (pocket5, edges_at(pocket5, [
    (157.65, 101, 1.5),
    (0, 101, 1.5),
    (137.65, 107, 1.5),
    (152.65, 107, 1.5),
    (0, 3, 1.5),
]))
fillet3.Radius = 2

# Sketch on XY plane
sketch10 = body.newObject("Sketcher::SketchObject", "Sketch009")
sketch10.AttachmentSupport = (doc.getObject("XY_Plane"), [""])
sketch10.MapMode = "FlatFace"
sketch10.AttachmentOffset = App.Placement(V(0, 0, 3), App.Rotation())
add_polygon(sketch10, [(138.5, 3), (138.5, 0), (157.7, 0), (157.7, 3)])  # lines 0-3
sketch10.addConstraint(Sketcher.Constraint("Vertical", 0))
sketch10.addConstraint(Sketcher.Constraint("Horizontal", 1))
sketch10.addConstraint(Sketcher.Constraint("Vertical", 2))
sketch10.addConstraint(Sketcher.Constraint("Horizontal", 3))
sketch10.addConstraint(Sketcher.Constraint("PointOnObject", 0, 2, -1))
sketch10.addConstraint(Sketcher.Constraint("DistanceY", 0, 2, 0, 1, Q("3 mm")))
sketch10.addConstraint(Sketcher.Constraint("DistanceX", -1, 1, 1, 2, Q("157.65 mm")))
sketch10.addConstraint(Sketcher.Constraint("DistanceX", 1, 1, 1, 2, Q("19.175713 mm")))
pocket6 = body.newObject("PartDesign::Pocket", "Pocket005")
pocket6.Profile = sketch10
pocket6.Length = 10
doc.recompute()

fillet4 = body.newObject("PartDesign::Fillet", "Fillet003")
fillet4.Base = (pocket6, edges_at(pocket6, [(157.65, 3, 1.5)]))
fillet4.Radius = 2

# Sketch on XY plane
sketch11 = body.newObject("Sketcher::SketchObject", "Sketch010")
sketch11.AttachmentSupport = (doc.getObject("XY_Plane"), [""])
sketch11.MapMode = "FlatFace"
sketch11.AttachmentOffset = App.Placement(V(0, 0, 3), App.Rotation())
add_polygon(sketch11, [(125.5, 3), (125.5, -0.4), (137.3, -0.4), (137.3, 3)])  # lines 0-3
sketch11.addConstraint(Sketcher.Constraint("Vertical", 0))
sketch11.addConstraint(Sketcher.Constraint("Horizontal", 1))
sketch11.addConstraint(Sketcher.Constraint("Vertical", 2))
sketch11.addConstraint(Sketcher.Constraint("Horizontal", 3))
sketch11.addConstraint(Sketcher.Constraint("DistanceY", -1, 1, 2, 2, Q("3 mm")))
sketch11.addConstraint(Sketcher.Constraint("DistanceX", 1, 1, 1, 2, Q("11.76733 mm")))
sketch11.addConstraint(Sketcher.Constraint("DistanceY", 0, 2, 0, 1, Q("3.399854 mm")))
sketch11.addConstraint(Sketcher.Constraint("DistanceX", -1, 1, 1, 2, Q("137.277308 mm")))
pad5 = body.newObject("PartDesign::Pad", "Pad004")
pad5.Profile = sketch11
pad5.Length = 3
pad5.Reversed = True

# Sketch on XY plane
sketch12 = body.newObject("Sketcher::SketchObject", "Sketch011")
sketch12.AttachmentSupport = (doc.getObject("XY_Plane"), [""])
sketch12.MapMode = "FlatFace"
sketch12.addGeometry(Part.Circle(V(12.5, 127.4, 0), V(0, 0, 1), 1.5), False)
sketch12.addGeometry(Part.Circle(V(12.5, 118.4, 0), V(0, 0, 1), 1.5), False)
sketch12.addConstraint(Sketcher.Constraint("Equal", 0, 1))
sketch12.addConstraint(Sketcher.Constraint("Vertical", 0, 3, 1, 3))
sketch12.addConstraint(Sketcher.Constraint("Diameter", 0, Q("3 mm")))
sketch12.addConstraint(Sketcher.Constraint("DistanceY", 1, 3, 0, 3, Q("9 mm")))
sketch12.addConstraint(Sketcher.Constraint("DistanceX", -1, 1, 0, 3, Q("12.5 mm")))
sketch12.addConstraint(Sketcher.Constraint("DistanceY", -1, 1, 0, 3, Q("127.377474 mm")))
pocket7 = body.newObject("PartDesign::Pocket", "Pocket006")
pocket7.Profile = sketch12
pocket7.Length = 10
pocket7.Reversed = True

# Sketch on XY plane
sketch13 = body.newObject("Sketcher::SketchObject", "Sketch012")
sketch13.AttachmentSupport = (doc.getObject("XY_Plane"), [""])
sketch13.MapMode = "FlatFace"
sketch13.AttachmentOffset = App.Placement(V(0, 0, 3), App.Rotation())
sketch13.addGeometry(Part.Circle(V(148.1, 98, 0), V(0, 0, 1), 1.5), False)
sketch13.addGeometry(Part.Circle(V(138.1, 98, 0), V(0, 0, 1), 1.5), False)
sketch13.addConstraint(Sketcher.Constraint("Equal", 0, 1))
sketch13.addConstraint(Sketcher.Constraint("Horizontal", 0, 3, 1, 3))
sketch13.addConstraint(Sketcher.Constraint("Diameter", 0, Q("3 mm")))
sketch13.addConstraint(Sketcher.Constraint("DistanceY", -1, 1, 0, 3, Q("98 mm")))
sketch13.addConstraint(Sketcher.Constraint("DistanceX", 1, 3, 0, 3, Q("10 mm")))
sketch13.addConstraint(Sketcher.Constraint("DistanceX", -1, 1, 0, 3, Q("148.092745 mm")))
pocket8 = body.newObject("PartDesign::Pocket", "Pocket007")
pocket8.Profile = sketch13
pocket8.Length = 10

doc.recompute()
